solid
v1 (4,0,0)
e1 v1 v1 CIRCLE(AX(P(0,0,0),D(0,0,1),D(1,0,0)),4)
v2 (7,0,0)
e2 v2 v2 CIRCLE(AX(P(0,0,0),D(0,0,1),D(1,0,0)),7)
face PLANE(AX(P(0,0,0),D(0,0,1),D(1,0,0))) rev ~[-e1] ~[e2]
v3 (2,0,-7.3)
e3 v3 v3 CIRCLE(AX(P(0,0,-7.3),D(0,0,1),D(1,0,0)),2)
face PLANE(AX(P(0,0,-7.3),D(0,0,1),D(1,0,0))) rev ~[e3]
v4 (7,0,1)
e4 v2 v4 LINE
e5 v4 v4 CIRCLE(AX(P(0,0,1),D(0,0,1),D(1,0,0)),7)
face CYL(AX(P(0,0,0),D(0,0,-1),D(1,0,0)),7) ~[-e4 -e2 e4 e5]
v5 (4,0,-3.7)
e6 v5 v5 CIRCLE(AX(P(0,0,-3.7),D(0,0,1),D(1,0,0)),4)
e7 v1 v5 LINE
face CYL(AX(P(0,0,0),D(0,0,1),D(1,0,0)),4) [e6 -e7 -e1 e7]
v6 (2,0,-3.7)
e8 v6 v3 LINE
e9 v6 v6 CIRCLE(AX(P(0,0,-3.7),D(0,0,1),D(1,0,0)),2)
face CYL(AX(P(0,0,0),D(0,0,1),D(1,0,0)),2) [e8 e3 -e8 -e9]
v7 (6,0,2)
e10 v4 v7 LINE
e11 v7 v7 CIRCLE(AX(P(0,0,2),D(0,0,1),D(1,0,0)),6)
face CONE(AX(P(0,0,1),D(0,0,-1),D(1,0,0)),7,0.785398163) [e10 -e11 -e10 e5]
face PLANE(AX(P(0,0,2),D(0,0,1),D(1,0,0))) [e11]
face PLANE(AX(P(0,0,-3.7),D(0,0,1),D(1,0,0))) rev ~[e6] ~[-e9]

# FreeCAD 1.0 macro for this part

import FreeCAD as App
import Part
import Sketcher
Q = App.Units.Quantity


def edges_at(feature, points):
    """Names of the edges that pass closest to the given points."""
    edges = feature.Shape.Edges
    near = lambda p: min(range(len(edges)), key=lambda i: edges[i].distToShape(Part.Vertex(*p))[0])
    return sorted({f"Edge{near(p) + 1}" for p in points})

doc = App.newDocument("Part")
body = doc.addObject("PartDesign::Body", "Body")

sketch1 = doc.addObject("Sketcher::SketchObject", "Sketch")
body.addObject(sketch1)
sketch1.AttachmentSupport = (doc.XY_Plane, [""])
sketch1.MapMode = "FlatFace"
sketch1.addGeometry(Part.Circle(App.Vector(0, 0, 0), App.Vector(0, 0, 1), 7), False)
sketch1.addConstraint(Sketcher.Constraint("Coincident", 0, 3, -1, 1))
sketch1.addConstraint(Sketcher.Constraint("Diameter", 0, Q("14 mm")))
pad1 = doc.addObject("PartDesign::Pad", "Pad")
body.addObject(pad1)
pad1.Profile = sketch1
pad1.Length = 2
doc.recompute()

chamfer = doc.addObject("PartDesign::Chamfer", "Chamfer")
body.addObject(chamfer)
chamfer.Base = (pad1, edges_at(pad1, [(-7, 0, 2)]))
chamfer.Size = 1

sketch2 = doc.addObject("Sketcher::SketchObject", "Sketch001")
body.addObject(sketch2)
sketch2.AttachmentSupport = (doc.XY_Plane, [""])
sketch2.MapMode = "FlatFace"
sketch2.addGeometry(Part.Circle(App.Vector(0, 0, 0), App.Vector(0, 0, 1), 2), False)
sketch2.addConstraint(Sketcher.Constraint("Coincident", 0, 3, -1, 1))
sketch2.addConstraint(Sketcher.Constraint("Diameter", 0, Q("4 mm")))
pad2 = doc.addObject("PartDesign::Pad", "Pad001")
body.addObject(pad2)
pad2.Profile = sketch2
pad2.Length = 7.3
pad2.Reversed = True

sketch3 = doc.addObject("Sketcher::SketchObject", "Sketch002")
body.addObject(sketch3)
sketch3.AttachmentSupport = (doc.XY_Plane, [""])
sketch3.MapMode = "FlatFace"
sketch3.addGeometry(Part.Circle(App.Vector(0, 0, 0), App.Vector(0, 0, 1), 4), False)
sketch3.addGeometry(Part.Circle(App.Vector(0, 0, 0), App.Vector(0, 0, 1), 2), False)
sketch3.addConstraint(Sketcher.Constraint("Coincident", 0, 3, -1, 1))
sketch3.addConstraint(Sketcher.Constraint("Coincident", 1, 3, -1, 1))
sketch3.addConstraint(Sketcher.Constraint("Diameter", 0, Q("8 mm")))
sketch3.addConstraint(Sketcher.Constraint("Diameter", 1, Q("4 mm")))
pad3 = doc.addObject("PartDesign::Pad", "Pad002")
body.addObject(pad3)
pad3.Profile = sketch3
pad3.Length = 3.7
pad3.Reversed = True

doc.recompute()
